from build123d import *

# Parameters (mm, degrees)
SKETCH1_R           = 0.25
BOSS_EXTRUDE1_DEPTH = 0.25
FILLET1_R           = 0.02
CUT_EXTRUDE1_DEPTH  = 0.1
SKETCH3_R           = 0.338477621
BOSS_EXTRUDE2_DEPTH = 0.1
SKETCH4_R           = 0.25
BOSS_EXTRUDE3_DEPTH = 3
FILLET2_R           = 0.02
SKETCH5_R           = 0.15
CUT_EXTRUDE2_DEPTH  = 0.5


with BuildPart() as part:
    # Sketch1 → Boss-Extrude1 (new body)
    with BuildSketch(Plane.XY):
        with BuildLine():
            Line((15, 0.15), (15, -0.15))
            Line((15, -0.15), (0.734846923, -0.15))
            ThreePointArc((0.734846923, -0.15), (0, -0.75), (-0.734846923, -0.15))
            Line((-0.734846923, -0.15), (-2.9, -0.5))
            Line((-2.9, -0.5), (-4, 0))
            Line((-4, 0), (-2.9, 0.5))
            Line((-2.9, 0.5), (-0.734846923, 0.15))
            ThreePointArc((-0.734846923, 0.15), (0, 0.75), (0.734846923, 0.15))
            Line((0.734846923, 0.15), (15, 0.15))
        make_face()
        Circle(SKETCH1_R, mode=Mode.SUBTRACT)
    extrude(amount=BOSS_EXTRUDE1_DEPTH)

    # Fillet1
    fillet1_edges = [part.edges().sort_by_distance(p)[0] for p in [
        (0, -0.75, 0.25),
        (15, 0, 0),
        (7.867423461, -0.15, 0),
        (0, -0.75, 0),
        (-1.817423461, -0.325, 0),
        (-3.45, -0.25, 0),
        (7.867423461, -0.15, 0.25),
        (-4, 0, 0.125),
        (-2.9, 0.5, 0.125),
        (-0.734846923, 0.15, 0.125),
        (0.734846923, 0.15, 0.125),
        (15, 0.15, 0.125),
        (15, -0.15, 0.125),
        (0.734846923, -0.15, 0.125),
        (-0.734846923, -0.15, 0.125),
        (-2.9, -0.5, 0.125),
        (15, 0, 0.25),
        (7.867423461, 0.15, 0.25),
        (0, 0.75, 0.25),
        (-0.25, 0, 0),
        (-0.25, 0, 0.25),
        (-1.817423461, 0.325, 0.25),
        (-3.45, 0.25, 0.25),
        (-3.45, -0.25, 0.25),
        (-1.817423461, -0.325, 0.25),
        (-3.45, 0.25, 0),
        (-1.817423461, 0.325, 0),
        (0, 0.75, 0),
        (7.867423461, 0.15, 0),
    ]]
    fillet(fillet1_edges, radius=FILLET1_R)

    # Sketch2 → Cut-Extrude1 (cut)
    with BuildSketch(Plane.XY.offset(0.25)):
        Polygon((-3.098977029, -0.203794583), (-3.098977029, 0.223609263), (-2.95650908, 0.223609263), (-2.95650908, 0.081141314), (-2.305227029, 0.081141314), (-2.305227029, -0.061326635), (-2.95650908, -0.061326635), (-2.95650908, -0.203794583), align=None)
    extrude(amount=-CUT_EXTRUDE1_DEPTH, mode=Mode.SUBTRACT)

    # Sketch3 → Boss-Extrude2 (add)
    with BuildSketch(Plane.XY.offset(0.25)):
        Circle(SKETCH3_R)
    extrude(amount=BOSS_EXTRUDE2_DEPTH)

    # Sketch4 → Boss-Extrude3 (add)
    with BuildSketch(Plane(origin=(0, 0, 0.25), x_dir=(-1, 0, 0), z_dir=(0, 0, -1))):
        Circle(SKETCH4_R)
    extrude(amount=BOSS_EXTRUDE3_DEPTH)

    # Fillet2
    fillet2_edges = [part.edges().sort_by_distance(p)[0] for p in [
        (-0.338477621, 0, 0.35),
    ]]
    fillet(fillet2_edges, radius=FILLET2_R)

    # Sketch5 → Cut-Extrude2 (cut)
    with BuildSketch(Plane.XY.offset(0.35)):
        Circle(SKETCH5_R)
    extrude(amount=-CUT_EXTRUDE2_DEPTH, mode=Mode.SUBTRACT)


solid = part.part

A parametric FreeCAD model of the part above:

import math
import FreeCAD as App
import Part
import Sketcher


def edges_at(feature, points):
    """Names of the edges that pass closest to the given points."""
    edges = feature.Shape.Edges
    near = lambda p: min(range(len(edges)), key=lambda i: edges[i].distToShape(Part.Vertex(*p))[0])
    return sorted({f"Edge{near(p) + 1}" for p in points})


def add_polygon(sketch, points):
    """Adds a closed chain of lines whose ends are joined by coincident constraints."""
    first, n = sketch.GeometryCount, len(points)
    for a, b in zip(points, points[1:] + points[:1]):
        sketch.addGeometry(Part.LineSegment(App.Vector(*a, 0), App.Vector(*b, 0)), False)
    for i in range(n):
        sketch.addConstraint(Sketcher.Constraint("Coincident", first + i, 2, first + (i + 1) % n, 1))

doc = App.newDocument("Part")
body = doc.addObject("PartDesign::Body", "Body")

# Sketch on XY plane
sketch1 = body.newObject("Sketcher::SketchObject", "Sketch")
sketch1.AttachmentSupport = (doc.getObject("XY_Plane"), [""])
sketch1.MapMode = "FlatFace"
sketch1.addGeometry([
    Part.LineSegment(App.Vector(15, -0.15, 0), App.Vector(15, 0.15, 0)),  # 0
    Part.LineSegment(App.Vector(15, 0.15, 0), App.Vector(0.734847, 0.15, 0)),  # 1
    Part.ArcOfCircle(Part.Circle(App.Vector(0, 0, 0), App.Vector(0, 0, 1), 0.75), math.radians(11.536959), math.radians(168.463041)),  # 2
    Part.LineSegment(App.Vector(-0.734847, 0.15, 0), App.Vector(-2.9, 0.5, 0)),  # 3
    Part.LineSegment(App.Vector(-2.9, 0.5, 0), App.Vector(-4, 0, 0)),  # 4
    Part.LineSegment(App.Vector(-4, 0, 0), App.Vector(-2.9, -0.5, 0)),  # 5
    Part.LineSegment(App.Vector(-2.9, -0.5, 0), App.Vector(-0.734847, -0.15, 0)),  # 6
    Part.ArcOfCircle(Part.Circle(App.Vector(0, 0, 0), App.Vector(0, 0, 1), 0.75), math.radians(-168.463041), math.radians(-11.536959)),  # 7
    Part.LineSegment(App.Vector(0.734847, -0.15, 0), App.Vector(15, -0.15, 0)),  # 8
    Part.Circle(App.Vector(0, 0, 0), App.Vector(0, 0, 1), 0.25),  # 9
], False)
sketch1.addConstraint([
    Sketcher.Constraint("Coincident", 0, 2, 1, 1),
    Sketcher.Constraint("Coincident", 1, 2, 2, 1),
    Sketcher.Constraint("Coincident", 2, 2, 3, 1),
    Sketcher.Constraint("Coincident", 3, 2, 4, 1),
    Sketcher.Constraint("Coincident", 4, 2, 5, 1),
    Sketcher.Constraint("Coincident", 5, 2, 6, 1),
    Sketcher.Constraint("Coincident", 6, 2, 7, 1),
    Sketcher.Constraint("Coincident", 7, 2, 8, 1),
    Sketcher.Constraint("Coincident", 8, 2, 0, 1),
    Sketcher.Constraint("Vertical", 0),
    Sketcher.Constraint("Horizontal", 1),
    Sketcher.Constraint("Horizontal", 8),
    Sketcher.Constraint("Coincident", 2, 3, -1, 1),
    Sketcher.Constraint("Coincident", 7, 3, -1, 1),
    Sketcher.Constraint("Coincident", 9, 3, -1, 1),
    Sketcher.Constraint("Equal", 2, 7),
    Sketcher.Constraint("Symmetric", 3, 2, 5, 2, -1),
    Sketcher.Constraint("PointOnObject", 4, 2, -1),
    Sketcher.Constraint("Horizontal", 1, 2, 2, 2),
    Sketcher.Constraint("Horizontal", 6, 2, 7, 2),
    Sketcher.Constraint("Vertical", 2, 2, 6, 2),
    Sketcher.Constraint("Diameter", 9, 0.5),
    Sketcher.Constraint("Radius", 2, 0.75),
    Sketcher.Constraint("DistanceY", 0, 1, 0, 2, 0.3),
    Sketcher.Constraint("DistanceX", -1, 1, 0, 2, 15.0),
    Sketcher.Constraint("DistanceX", 4, 2, -1, 1, 4.0),
    Sketcher.Constraint("DistanceY", 5, 2, 3, 2, 1.0),
    Sketcher.Constraint("DistanceX", 3, 2, -1, 1, 2.9),
])
pad1 = body.newObject("PartDesign::Pad", "Pad")
pad1.Profile = sketch1
pad1.Length = 0.25
doc.recompute()

fillet = body.newObject("PartDesign::Fillet", "Fillet")
fillet.Base = (pad1, ["Edge1"])
fillet.UseAllEdges = True
fillet.Radius = 0.02

# Sketch on XY plane
sketch2 = body.newObject("Sketcher::SketchObject", "Sketch001")
sketch2.AttachmentSupport = (doc.getObject("XY_Plane"), [""])
sketch2.MapMode = "FlatFace"
sketch2.AttachmentOffset = App.Placement(App.Vector(0, 0, 0.25), App.Rotation())
add_polygon(sketch2, [(-3.098977, 0.223609), (-3.098977, -0.203795), (-2.956509, -0.203795), (-2.956509, -0.061327), (-2.305227, -0.061327), (-2.305227, 0.081141), (-2.956509, 0.081141), (-2.956509, 0.223609)])  # lines 0-7
sketch2.addConstraint([
    Sketcher.Constraint("Vertical", 0),
    Sketcher.Constraint("Horizontal", 1),
    Sketcher.Constraint("Vertical", 2),
    Sketcher.Constraint("Horizontal", 3),
    Sketcher.Constraint("Vertical", 4),
    Sketcher.Constraint("Horizontal", 5),
    Sketcher.Constraint("Vertical", 6),
    Sketcher.Constraint("Horizontal", 7),
    Sketcher.Constraint("Vertical", 2, 2, 5, 2),
    Sketcher.Constraint("Equal", 7, 2),
    Sketcher.Constraint("Equal", 2, 4),
    Sketcher.Constraint("Equal", 4, 6),
    Sketcher.Constraint("DistanceX", 1, 1, 1, 2, 0.142468),
    Sketcher.Constraint("DistanceX", 3, 1, 3, 2, 0.651282),
    Sketcher.Constraint("DistanceX", 1, 2, -1, 1, 2.956509),
    Sketcher.Constraint("DistanceY", -1, 1, 4, 2, 0.081141),
])
pocket1 = body.newObject("PartDesign::Pocket", "Pocket")
pocket1.Profile = sketch2
pocket1.Length = 0.1

# Sketch on XY plane
sketch3 = body.newObject("Sketcher::SketchObject", "Sketch002")
sketch3.AttachmentSupport = (doc.getObject("XY_Plane"), [""])
sketch3.MapMode = "FlatFace"
sketch3.AttachmentOffset = App.Placement(App.Vector(0, 0, 0.25), App.Rotation())
sketch3.addGeometry(Part.Circle(App.Vector(0, 0, 0), App.Vector(0, 0, 1), 0.338478), False)
sketch3.addConstraint([
    Sketcher.Constraint("Coincident", 0, 3, -1, 1),
    Sketcher.Constraint("Diameter", 0, 0.676955),
])
pad2 = body.newObject("PartDesign::Pad", "Pad001")
pad2.Profile = sketch3
pad2.Length = 0.1

# Sketch on XY plane
sketch4 = body.newObject("Sketcher::SketchObject", "Sketch003")
sketch4.AttachmentSupport = (doc.getObject("XY_Plane"), [""])
sketch4.MapMode = "FlatFace"
sketch4.AttachmentOffset = App.Placement(App.Vector(0, 0, 0.25), App.Rotation())
sketch4.addGeometry(Part.Circle(App.Vector(0, 0, 0), App.Vector(0, 0, 1), 0.25), False)
sketch4.addConstraint([
    Sketcher.Constraint("Coincident", 0, 3, -1, 1),
    Sketcher.Constraint("Diameter", 0, 0.5),
])
pad3 = body.newObject("PartDesign::Pad", "Pad002")
pad3.Profile = sketch4
pad3.Length = 3
pad3.Reversed = True
doc.recompute()

fillet2 = body.newObject("PartDesign::Fillet", "Fillet001")
fillet2.Base = (pad3, edges_at(pad3, [(-0.338, 0, 0.35)]))
fillet2.Radius = 0.02

# Sketch on XY plane
sketch5 = body.newObject("Sketcher::SketchObject", "Sketch004")
sketch5.AttachmentSupport = (doc.getObject("XY_Plane"), [""])
sketch5.MapMode = "FlatFace"
sketch5.AttachmentOffset = App.Placement(App.Vector(0, 0, 0.35), App.Rotation())
sketch5.addGeometry(Part.Circle(App.Vector(0, 0, 0), App.Vector(0, 0, 1), 0.15), False)
sketch5.addConstraint([
    Sketcher.Constraint("Coincident", 0, 3, -1, 1),
    Sketcher.Constraint("Diameter", 0, 0.3),
])
pocket2 = body.newObject("PartDesign::Pocket", "Pocket001")
pocket2.Profile = sketch5
pocket2.Length = 0.5

doc.recompute()
